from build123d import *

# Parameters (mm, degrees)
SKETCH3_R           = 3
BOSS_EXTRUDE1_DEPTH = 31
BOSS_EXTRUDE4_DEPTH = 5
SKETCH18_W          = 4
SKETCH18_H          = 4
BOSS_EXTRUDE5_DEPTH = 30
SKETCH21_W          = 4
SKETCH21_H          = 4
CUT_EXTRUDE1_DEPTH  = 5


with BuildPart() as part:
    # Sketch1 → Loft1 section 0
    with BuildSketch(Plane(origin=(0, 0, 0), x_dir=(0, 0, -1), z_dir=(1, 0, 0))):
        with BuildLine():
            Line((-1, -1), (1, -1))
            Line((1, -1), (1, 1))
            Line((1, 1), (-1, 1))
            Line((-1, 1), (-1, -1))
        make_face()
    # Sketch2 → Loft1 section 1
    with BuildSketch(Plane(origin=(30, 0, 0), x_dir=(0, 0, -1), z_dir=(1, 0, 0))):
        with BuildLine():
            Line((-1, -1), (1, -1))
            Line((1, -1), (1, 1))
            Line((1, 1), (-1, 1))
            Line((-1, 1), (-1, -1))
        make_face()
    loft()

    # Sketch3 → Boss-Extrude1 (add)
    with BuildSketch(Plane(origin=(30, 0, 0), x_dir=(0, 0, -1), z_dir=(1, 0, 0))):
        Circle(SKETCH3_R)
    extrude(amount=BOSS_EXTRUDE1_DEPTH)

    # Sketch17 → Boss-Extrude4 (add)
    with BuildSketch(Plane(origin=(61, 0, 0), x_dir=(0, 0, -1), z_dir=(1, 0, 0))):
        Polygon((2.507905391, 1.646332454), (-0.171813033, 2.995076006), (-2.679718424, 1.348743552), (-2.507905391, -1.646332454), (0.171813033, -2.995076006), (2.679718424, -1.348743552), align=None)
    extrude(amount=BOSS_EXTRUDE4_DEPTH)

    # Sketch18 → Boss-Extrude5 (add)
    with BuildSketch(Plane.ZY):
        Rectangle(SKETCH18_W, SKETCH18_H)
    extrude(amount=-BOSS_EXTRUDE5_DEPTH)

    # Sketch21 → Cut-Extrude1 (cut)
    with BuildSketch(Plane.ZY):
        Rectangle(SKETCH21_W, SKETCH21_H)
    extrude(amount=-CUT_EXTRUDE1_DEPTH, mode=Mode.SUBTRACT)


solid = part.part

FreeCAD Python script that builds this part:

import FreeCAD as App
import Part
import Sketcher


def add_polygon(sketch, points):
    """Adds a closed chain of lines whose ends are joined by coincident constraints."""
    first, n = sketch.GeometryCount, len(points)
    for a, b in zip(points, points[1:] + points[:1]):
        sketch.addGeometry(Part.LineSegment(App.Vector(*a, 0), App.Vector(*b, 0)), False)
    for i in range(n):
        sketch.addConstraint(Sketcher.Constraint("Coincident", first + i, 2, first + (i + 1) % n, 1))

doc = App.newDocument("Part")
body = doc.addObject("PartDesign::Body", "Body")

# Sketch on YZ plane
sketch1 = doc.addObject("Sketcher::SketchObject", "Sketch")
body.addObject(sketch1)
sketch1.AttachmentSupport = (doc.YZ_Plane, [""])
sketch1.MapMode = "FlatFace"
add_polygon(sketch1, [(-1, 1), (-1, -1), (1, -1), (1, 1)])  # lines 0-3
sketch1.addConstraint([
    Sketcher.Constraint("Vertical", 0),
    Sketcher.Constraint("Horizontal", 1),
    Sketcher.Constraint("Vertical", 2),
    Sketcher.Constraint("Horizontal", 3),
    Sketcher.Constraint("Symmetric", 0, 2, 2, 2, -1, 1),
    Sketcher.Constraint("Equal", 3, 0),
    Sketcher.Constraint("DistanceX", 1, 1, 1, 2, 2.0),
])

# Sketch on YZ plane
sketch2 = doc.addObject("Sketcher::SketchObject", "Sketch001")
body.addObject(sketch2)
sketch2.AttachmentSupport = (doc.YZ_Plane, [""])
sketch2.MapMode = "FlatFace"
sketch2.AttachmentOffset = App.Placement(App.Vector(0, 0, 30), App.Rotation())
add_polygon(sketch2, [(-1, 1), (-1, -1), (1, -1), (1, 1)])  # lines 0-3
sketch2.addConstraint([
    Sketcher.Constraint("Vertical", 0),
    Sketcher.Constraint("Horizontal", 1),
    Sketcher.Constraint("Vertical", 2),
    Sketcher.Constraint("Horizontal", 3),
    Sketcher.Constraint("Symmetric", 0, 2, 2, 2, -1, 1),
    Sketcher.Constraint("Equal", 3, 0),
    Sketcher.Constraint("DistanceX", 1, 1, 1, 2, 2.0),
])

additiveloft = doc.addObject("PartDesign::AdditiveLoft", "AdditiveLoft")
body.addObject(additiveloft)
additiveloft.Profile = sketch1
additiveloft.Sections = [sketch2]

# Sketch on YZ plane
sketch3 = doc.addObject("Sketcher::SketchObject", "Sketch002")
body.addObject(sketch3)
sketch3.AttachmentSupport = (doc.YZ_Plane, [""])
sketch3.MapMode = "FlatFace"
sketch3.AttachmentOffset = App.Placement(App.Vector(0, 0, 30), App.Rotation())
sketch3.addGeometry(Part.Circle(App.Vector(0, 0, 0), App.Vector(0, 0, 1), 3), False)
sketch3.addConstraint([
    Sketcher.Constraint("Coincident", 0, 3, -1, 1),
    Sketcher.Constraint("Diameter", 0, 6.0),
])
pad1 = doc.addObject("PartDesign::Pad", "Pad")
body.addObject(pad1)
pad1.Profile = sketch3
pad1.Length = 31

# Sketch on YZ plane
sketch4 = doc.addObject("Sketcher::SketchObject", "Sketch003")
body.addObject(sketch4)
sketch4.AttachmentSupport = (doc.YZ_Plane, [""])
sketch4.MapMode = "FlatFace"
sketch4.AttachmentOffset = App.Placement(App.Vector(0, 0, 61), App.Rotation())
add_polygon(sketch4, [(1.6, -2.5), (3, 0.2), (1.3, 2.7), (-1.6, 2.5), (-3, -0.2), (-1.3, -2.7)])  # lines 0-5
sketch4.addConstraint([
    Sketcher.Constraint("Symmetric", 0, 2, 3, 2, -1, 1),
    Sketcher.Constraint("Symmetric", 1, 2, 4, 2, -1, 1),
    Sketcher.Constraint("Symmetric", 2, 2, 5, 2, -1, 1),
    Sketcher.Constraint("Equal", 0, 1),
    Sketcher.Constraint("Equal", 1, 2),
    Sketcher.Constraint("Distance", 0, 3.0),
    Sketcher.Constraint("DistanceY", -1, 1, 1, 2, 2.679718),
    Sketcher.Constraint("DistanceX", 2, 2, 0, 2, 4.641408),
    Sketcher.Constraint("DistanceY", 3, 2, 2, 2, 2.679718),
])
pad2 = doc.addObject("PartDesign::Pad", "Pad001")
body.addObject(pad2)
pad2.Profile = sketch4
pad2.Length = 5

# Sketch on YZ plane
sketch5 = doc.addObject("Sketcher::SketchObject", "Sketch004")
body.addObject(sketch5)
sketch5.AttachmentSupport = (doc.YZ_Plane, [""])
sketch5.MapMode = "FlatFace"
add_polygon(sketch5, [(2, -2), (-2, -2), (-2, 2), (2, 2)])  # lines 0-3
sketch5.addConstraint([
    Sketcher.Constraint("Horizontal", 0),
    Sketcher.Constraint("Vertical", 1),
    Sketcher.Constraint("Horizontal", 2),
    Sketcher.Constraint("Vertical", 3),
    Sketcher.Constraint("Symmetric", 0, 2, 2, 2, -1, 1),
    Sketcher.Constraint("Equal", 2, 1),
    Sketcher.Constraint("DistanceX", 0, 2, 0, 1, 4.0),
])
pad3 = doc.addObject("PartDesign::Pad", "Pad002")
body.addObject(pad3)
pad3.Profile = sketch5
pad3.Length = 30

# Sketch on YZ plane
sketch6 = doc.addObject("Sketcher::SketchObject", "Sketch005")
body.addObject(sketch6)
sketch6.AttachmentSupport = (doc.YZ_Plane, [""])
sketch6.MapMode = "FlatFace"
add_polygon(sketch6, [(2, -2), (-2, -2), (-2, 2), (2, 2)])  # lines 0-3
sketch6.addConstraint([
    Sketcher.Constraint("Horizontal", 0),
    Sketcher.Constraint("Vertical", 1),
    Sketcher.Constraint("Horizontal", 2),
    Sketcher.Constraint("Vertical", 3),
    Sketcher.Constraint("Symmetric", 0, 2, 2, 2, -1, 1),
    Sketcher.Constraint("Equal", 2, 1),
    Sketcher.Constraint("DistanceX", 0, 2, 0, 1, 4.0),
])
pocket1 = doc.addObject("PartDesign::Pocket", "Pocket")
body.addObject(pocket1)
pocket1.Profile = sketch6
pocket1.Length = 5
pocket1.Reversed = True

doc.recompute()
